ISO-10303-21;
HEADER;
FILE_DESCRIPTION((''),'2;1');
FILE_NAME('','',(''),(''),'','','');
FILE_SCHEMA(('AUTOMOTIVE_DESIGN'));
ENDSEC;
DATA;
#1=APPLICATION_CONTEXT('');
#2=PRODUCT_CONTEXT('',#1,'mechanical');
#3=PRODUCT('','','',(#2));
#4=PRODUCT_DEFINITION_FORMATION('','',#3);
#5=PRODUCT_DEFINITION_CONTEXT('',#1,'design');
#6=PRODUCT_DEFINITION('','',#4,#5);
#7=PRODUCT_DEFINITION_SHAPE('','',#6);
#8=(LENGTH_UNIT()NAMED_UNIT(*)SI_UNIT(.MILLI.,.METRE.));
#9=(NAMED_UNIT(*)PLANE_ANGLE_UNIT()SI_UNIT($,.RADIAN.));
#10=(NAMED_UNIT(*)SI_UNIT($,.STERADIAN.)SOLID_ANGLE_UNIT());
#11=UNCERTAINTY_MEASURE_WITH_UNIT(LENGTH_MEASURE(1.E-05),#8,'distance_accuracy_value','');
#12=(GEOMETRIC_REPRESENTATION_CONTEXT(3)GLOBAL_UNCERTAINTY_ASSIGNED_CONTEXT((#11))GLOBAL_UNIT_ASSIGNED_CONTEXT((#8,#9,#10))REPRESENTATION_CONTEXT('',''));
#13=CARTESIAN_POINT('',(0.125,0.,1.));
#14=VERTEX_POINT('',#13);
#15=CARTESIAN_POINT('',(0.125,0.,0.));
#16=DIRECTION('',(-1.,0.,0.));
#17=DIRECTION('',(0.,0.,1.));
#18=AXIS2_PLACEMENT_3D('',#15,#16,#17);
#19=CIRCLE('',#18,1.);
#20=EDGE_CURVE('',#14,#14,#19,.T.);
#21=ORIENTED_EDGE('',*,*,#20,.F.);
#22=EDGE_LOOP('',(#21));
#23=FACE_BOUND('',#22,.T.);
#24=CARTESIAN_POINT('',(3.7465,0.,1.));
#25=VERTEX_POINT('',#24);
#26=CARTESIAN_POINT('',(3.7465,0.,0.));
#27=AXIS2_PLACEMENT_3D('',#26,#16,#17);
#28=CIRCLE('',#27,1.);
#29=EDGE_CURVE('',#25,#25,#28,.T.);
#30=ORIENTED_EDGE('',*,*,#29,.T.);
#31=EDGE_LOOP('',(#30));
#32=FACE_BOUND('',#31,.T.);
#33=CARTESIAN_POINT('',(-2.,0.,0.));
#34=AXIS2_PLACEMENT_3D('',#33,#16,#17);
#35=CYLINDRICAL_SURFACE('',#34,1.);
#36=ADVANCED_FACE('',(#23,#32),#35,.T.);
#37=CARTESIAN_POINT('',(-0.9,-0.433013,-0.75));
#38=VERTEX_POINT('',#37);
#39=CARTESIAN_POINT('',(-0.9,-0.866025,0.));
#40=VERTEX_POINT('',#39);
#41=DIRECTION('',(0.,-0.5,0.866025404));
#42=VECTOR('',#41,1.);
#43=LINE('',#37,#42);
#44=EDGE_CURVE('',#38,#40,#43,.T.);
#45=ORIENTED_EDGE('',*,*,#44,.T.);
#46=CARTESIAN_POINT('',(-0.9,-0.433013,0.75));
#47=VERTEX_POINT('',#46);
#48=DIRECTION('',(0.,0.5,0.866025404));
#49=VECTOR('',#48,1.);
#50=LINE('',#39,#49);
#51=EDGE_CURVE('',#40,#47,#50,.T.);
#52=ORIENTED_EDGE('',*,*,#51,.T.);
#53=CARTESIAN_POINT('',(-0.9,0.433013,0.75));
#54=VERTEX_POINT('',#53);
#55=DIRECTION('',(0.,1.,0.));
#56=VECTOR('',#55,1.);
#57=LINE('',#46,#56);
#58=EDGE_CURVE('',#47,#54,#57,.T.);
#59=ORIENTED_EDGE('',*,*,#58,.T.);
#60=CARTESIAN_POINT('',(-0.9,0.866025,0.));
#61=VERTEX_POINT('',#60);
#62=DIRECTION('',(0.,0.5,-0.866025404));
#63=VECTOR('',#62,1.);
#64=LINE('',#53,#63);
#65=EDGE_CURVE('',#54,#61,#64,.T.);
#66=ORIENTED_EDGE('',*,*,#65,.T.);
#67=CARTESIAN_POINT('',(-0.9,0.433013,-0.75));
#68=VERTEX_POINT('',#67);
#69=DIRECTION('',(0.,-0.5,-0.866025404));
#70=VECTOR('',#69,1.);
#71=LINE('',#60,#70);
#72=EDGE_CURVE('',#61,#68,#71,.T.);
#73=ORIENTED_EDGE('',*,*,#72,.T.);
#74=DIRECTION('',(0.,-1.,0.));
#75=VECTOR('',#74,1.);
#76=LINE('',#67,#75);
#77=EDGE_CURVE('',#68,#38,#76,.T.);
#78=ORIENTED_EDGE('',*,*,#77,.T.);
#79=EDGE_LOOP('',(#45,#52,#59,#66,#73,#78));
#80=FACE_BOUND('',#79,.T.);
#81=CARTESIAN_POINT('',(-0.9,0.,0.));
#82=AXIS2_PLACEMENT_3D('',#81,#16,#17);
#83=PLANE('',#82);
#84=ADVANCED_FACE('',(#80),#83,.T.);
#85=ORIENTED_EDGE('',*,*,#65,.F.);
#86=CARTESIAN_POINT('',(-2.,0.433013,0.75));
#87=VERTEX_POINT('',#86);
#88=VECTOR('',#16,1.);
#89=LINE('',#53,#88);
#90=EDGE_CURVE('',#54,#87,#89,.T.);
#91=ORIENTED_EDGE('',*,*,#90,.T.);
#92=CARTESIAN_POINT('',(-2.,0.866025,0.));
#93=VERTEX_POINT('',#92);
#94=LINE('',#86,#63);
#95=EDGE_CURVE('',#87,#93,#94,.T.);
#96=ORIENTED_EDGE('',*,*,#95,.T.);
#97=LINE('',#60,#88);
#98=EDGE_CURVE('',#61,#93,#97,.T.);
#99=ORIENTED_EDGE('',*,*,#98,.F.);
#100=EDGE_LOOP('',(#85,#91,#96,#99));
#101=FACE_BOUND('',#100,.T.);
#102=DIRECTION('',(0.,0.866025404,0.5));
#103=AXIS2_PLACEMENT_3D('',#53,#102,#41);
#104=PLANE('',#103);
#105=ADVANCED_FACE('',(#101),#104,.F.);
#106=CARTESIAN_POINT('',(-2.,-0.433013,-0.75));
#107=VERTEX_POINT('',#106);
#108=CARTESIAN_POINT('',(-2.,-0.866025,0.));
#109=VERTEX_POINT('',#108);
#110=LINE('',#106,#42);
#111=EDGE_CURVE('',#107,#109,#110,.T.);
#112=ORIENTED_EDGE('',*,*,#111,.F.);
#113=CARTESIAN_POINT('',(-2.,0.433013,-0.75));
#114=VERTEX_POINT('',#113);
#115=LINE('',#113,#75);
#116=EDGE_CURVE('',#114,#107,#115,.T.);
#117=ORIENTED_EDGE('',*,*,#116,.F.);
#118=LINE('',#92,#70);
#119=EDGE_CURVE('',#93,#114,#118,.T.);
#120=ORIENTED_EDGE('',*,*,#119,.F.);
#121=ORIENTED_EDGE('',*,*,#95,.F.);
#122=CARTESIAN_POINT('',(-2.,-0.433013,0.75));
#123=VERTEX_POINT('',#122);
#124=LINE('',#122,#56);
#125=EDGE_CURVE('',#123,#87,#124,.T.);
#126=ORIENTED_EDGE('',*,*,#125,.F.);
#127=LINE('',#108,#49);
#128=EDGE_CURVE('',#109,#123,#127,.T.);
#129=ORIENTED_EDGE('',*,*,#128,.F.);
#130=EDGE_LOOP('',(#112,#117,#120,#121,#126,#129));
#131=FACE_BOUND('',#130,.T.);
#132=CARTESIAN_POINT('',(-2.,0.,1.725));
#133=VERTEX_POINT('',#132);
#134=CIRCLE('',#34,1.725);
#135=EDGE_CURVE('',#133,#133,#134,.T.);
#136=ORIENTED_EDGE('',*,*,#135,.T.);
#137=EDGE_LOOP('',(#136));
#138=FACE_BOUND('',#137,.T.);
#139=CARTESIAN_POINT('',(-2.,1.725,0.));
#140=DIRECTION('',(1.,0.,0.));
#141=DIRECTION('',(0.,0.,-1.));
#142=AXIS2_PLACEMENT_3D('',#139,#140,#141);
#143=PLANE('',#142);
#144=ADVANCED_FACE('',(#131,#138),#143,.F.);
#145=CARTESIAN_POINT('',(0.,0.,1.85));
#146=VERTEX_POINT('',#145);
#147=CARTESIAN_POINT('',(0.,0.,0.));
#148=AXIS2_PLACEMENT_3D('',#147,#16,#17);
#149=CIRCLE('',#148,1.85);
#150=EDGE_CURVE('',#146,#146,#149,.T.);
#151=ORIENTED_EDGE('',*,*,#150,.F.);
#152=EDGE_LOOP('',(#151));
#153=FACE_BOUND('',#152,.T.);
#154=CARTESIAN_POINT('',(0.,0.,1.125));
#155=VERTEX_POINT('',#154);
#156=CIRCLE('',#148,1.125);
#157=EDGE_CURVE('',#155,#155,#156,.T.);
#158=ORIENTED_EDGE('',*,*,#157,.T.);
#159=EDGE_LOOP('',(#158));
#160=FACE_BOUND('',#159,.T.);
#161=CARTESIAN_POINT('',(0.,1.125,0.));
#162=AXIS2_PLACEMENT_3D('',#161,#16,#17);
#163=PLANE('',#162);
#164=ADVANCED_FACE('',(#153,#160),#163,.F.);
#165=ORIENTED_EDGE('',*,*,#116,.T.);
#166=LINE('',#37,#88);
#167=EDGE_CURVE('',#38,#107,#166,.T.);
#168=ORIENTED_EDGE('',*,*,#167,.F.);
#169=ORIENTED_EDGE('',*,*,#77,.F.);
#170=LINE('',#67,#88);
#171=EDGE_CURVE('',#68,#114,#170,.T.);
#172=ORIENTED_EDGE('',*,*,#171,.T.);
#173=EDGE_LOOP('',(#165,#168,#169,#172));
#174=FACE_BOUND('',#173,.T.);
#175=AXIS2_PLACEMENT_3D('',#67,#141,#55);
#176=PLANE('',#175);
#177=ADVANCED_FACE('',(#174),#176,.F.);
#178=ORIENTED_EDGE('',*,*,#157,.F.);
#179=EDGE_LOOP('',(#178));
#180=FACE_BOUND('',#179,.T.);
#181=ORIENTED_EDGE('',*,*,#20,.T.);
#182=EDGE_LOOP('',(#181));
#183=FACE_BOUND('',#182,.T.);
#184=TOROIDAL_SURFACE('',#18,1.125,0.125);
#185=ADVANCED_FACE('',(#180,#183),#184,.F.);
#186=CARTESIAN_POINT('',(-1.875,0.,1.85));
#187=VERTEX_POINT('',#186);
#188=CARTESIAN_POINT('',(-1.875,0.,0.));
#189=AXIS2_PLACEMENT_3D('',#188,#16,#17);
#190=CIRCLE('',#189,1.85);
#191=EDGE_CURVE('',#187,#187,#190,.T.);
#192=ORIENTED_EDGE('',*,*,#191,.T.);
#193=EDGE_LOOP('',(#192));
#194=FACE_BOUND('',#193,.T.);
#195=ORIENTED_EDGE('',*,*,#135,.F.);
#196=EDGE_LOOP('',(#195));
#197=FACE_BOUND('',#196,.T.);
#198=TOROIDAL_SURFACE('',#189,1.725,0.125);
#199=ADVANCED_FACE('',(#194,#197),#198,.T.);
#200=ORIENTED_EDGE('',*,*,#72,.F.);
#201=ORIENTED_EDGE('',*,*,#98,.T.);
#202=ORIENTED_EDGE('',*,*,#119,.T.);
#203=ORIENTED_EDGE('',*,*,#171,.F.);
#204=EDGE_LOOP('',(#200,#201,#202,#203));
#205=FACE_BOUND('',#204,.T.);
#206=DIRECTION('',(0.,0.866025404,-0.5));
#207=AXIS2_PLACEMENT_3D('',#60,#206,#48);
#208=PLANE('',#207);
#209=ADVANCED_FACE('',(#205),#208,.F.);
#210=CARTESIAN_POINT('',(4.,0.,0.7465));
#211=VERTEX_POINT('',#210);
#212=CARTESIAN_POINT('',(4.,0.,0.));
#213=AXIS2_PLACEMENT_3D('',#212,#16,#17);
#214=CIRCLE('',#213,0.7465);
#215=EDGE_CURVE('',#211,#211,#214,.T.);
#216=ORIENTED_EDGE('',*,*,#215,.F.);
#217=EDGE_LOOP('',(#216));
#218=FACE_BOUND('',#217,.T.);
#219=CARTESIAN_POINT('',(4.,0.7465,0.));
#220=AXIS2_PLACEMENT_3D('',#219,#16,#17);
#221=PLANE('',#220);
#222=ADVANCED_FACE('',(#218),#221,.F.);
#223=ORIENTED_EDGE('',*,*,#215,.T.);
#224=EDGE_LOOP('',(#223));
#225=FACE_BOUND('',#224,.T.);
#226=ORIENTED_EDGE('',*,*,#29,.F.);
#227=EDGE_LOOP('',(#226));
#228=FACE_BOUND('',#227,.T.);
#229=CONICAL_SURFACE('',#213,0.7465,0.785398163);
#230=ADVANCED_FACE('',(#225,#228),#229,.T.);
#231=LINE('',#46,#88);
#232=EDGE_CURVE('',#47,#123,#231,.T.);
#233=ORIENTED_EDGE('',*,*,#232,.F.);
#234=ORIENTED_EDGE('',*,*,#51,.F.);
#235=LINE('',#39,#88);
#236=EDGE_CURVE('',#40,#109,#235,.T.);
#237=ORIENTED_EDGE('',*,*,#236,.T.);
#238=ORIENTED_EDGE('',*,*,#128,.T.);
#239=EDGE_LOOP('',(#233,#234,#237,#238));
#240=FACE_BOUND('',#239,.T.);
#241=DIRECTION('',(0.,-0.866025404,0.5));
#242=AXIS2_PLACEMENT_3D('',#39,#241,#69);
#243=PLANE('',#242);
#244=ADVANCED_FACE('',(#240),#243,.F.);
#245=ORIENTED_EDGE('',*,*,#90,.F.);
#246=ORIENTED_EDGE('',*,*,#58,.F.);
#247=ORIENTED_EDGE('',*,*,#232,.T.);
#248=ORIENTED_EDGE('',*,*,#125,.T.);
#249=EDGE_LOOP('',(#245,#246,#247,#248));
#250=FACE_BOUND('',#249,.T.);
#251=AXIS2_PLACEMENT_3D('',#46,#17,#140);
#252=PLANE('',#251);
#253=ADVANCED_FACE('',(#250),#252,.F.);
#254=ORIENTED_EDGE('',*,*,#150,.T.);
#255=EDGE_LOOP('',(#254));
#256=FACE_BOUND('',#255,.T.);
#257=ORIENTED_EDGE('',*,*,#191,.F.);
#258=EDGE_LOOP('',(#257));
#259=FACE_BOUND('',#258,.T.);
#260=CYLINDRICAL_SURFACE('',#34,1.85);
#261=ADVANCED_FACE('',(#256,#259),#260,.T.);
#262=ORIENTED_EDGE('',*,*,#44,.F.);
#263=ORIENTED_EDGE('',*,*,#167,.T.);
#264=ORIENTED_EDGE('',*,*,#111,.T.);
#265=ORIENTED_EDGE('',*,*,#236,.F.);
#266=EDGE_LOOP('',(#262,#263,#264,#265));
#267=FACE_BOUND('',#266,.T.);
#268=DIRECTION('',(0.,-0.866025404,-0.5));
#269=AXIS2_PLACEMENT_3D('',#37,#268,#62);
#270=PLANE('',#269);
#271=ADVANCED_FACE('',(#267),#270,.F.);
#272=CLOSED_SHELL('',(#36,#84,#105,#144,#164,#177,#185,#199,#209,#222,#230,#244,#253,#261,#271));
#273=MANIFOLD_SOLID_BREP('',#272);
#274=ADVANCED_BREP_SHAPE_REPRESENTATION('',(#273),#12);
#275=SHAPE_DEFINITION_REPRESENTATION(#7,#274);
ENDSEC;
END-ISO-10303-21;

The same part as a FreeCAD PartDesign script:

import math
import FreeCAD as App
import Part
import Sketcher

V = App.Vector
Q = App.Units.Quantity

doc = App.newDocument("Part")
params = doc.addObject("Spreadsheet::Sheet", "Params")
for row, (alias, value) in enumerate([
    ("sketch1_width", "6 mm"),
    ("revolution_angle", "360 deg"),
    ("pocket1_length", "1.1 mm"),
], start=1):
    params.set(f"A{row}", alias)
    params.set(f"B{row}", "=" + value)
    params.setAlias(f"B{row}", alias)

body = doc.addObject("PartDesign::Body", "Body")

sketch1 = body.newObject("Sketcher::SketchObject", "Sketch")
sketch1.AttachmentSupport = (doc.getObject("XY_Plane"), [""])
sketch1.MapMode = "FlatFace"
sketch1.addGeometry(Part.LineSegment(V(3.75, 1, 0), V(0.12, 1, 0)), False)
sketch1.addGeometry(Part.ArcOfCircle(Part.Circle(V(0.12, 1.12, 0), V(0, 0, 1), 0.12), math.radians(180), math.radians(270)), False)
sketch1.addGeometry(Part.LineSegment(V(0, 1.12, 0), V(0, 1.85, 0)), False)
sketch1.addGeometry(Part.LineSegment(V(0, 1.85, 0), V(-1.88, 1.85, 0)), False)
sketch1.addGeometry(Part.ArcOfCircle(Part.Circle(V(-1.88, 1.73, 0), V(0, 0, 1), 0.12), math.radians(90), math.radians(180)), False)
sketch1.addGeometry(Part.LineSegment(V(-2, 1.73, 0), V(-2, 0, 0)), False)
sketch1.addGeometry(Part.LineSegment(V(-2, 0, 0), V(4, 0, 0)), False)
sketch1.addGeometry(Part.LineSegment(V(4, 0, 0), V(4, 0.75, 0)), False)
sketch1.addGeometry(Part.LineSegment(V(4, 0.75, 0), V(3.75, 1, 0)), False)
sketch1.addConstraint(Sketcher.Constraint("Tangent", 0, 2, 1, 2))
sketch1.addConstraint(Sketcher.Constraint("Tangent", 1, 1, 2, 1))
sketch1.addConstraint(Sketcher.Constraint("Coincident", 2, 2, 3, 1))
sketch1.addConstraint(Sketcher.Constraint("Tangent", 3, 2, 4, 1))
sketch1.addConstraint(Sketcher.Constraint("Tangent", 4, 2, 5, 1))
sketch1.addConstraint(Sketcher.Constraint("Coincident", 5, 2, 6, 1))
sketch1.addConstraint(Sketcher.Constraint("Coincident", 6, 2, 7, 1))
sketch1.addConstraint(Sketcher.Constraint("Coincident", 7, 2, 8, 1))
sketch1.addConstraint(Sketcher.Constraint("Coincident", 8, 2, 0, 1))
sketch1.addConstraint(Sketcher.Constraint("Horizontal", 0))
sketch1.addConstraint(Sketcher.Constraint("Vertical", 2))
sketch1.addConstraint(Sketcher.Constraint("Horizontal", 3))
sketch1.addConstraint(Sketcher.Constraint("Vertical", 5))
sketch1.addConstraint(Sketcher.Constraint("Horizontal", 6))
sketch1.addConstraint(Sketcher.Constraint("Vertical", 7))
sketch1.addConstraint(Sketcher.Constraint("Equal", 1, 4))
sketch1.addConstraint(Sketcher.Constraint("PointOnObject", 1, 1, -2))
sketch1.addConstraint(Sketcher.Constraint("PointOnObject", 5, 2, -1))
sketch1.addConstraint(Sketcher.Constraint("DistanceX", 6, 1, 6, 2, Q("6 mm")))
sketch1.addConstraint(Sketcher.Constraint("Angle", 8, Q("135 deg")))
sketch1.addConstraint(Sketcher.Constraint("DistanceY", -1, 1, 0, 2, Q("1 mm")))
sketch1.addConstraint(Sketcher.Constraint("DistanceX", 4, 2, -1, 1, Q("2 mm")))
sketch1.addConstraint(Sketcher.Constraint("Radius", 1, Q("0.125 mm")))
sketch1.addConstraint(Sketcher.Constraint("DistanceY", 1, 3, 4, 3, Q("0.6 mm")))
sketch1.addConstraint(Sketcher.Constraint("DistanceX", 0, 2, 0, 1, Q("3.6215 mm")))
sketch1.setExpression("Constraints[18]", "Params.sketch1_width")
revolution = body.newObject("PartDesign::Revolution", "Revolution")
revolution.Profile = sketch1
revolution.ReferenceAxis = (sketch1, ["H_Axis"])
revolution.setExpression("Angle", "Params.revolution_angle")

sketch2 = body.newObject("Sketcher::SketchObject", "Sketch001")
sketch2.AttachmentSupport = (doc.getObject("YZ_Plane"), [""])
sketch2.MapMode = "FlatFace"
sketch2.AttachmentOffset = App.Placement(V(0, 0, -2), App.Rotation())
sketch2.addGeometry(Part.LineSegment(V(0.4, 0.8, 0), V(0.9, 0, 0)), False)
sketch2.addGeometry(Part.LineSegment(V(0.9, 0, 0), V(0.4, -0.8, 0)), False)
sketch2.addGeometry(Part.LineSegment(V(0.4, -0.8, 0), V(-0.4, -0.8, 0)), False)
sketch2.addGeometry(Part.LineSegment(V(-0.4, -0.8, 0), V(-0.9, 0, 0)), False)
sketch2.addGeometry(Part.LineSegment(V(-0.9, 0, 0), V(-0.4, 0.8, 0)), False)
sketch2.addGeometry(Part.LineSegment(V(-0.4, 0.8, 0), V(0.4, 0.8, 0)), False)
sketch2.addConstraint(Sketcher.Constraint("Coincident", 0, 2, 1, 1))
sketch2.addConstraint(Sketcher.Constraint("Coincident", 1, 2, 2, 1))
sketch2.addConstraint(Sketcher.Constraint("Coincident", 2, 2, 3, 1))
sketch2.addConstraint(Sketcher.Constraint("Coincident", 3, 2, 4, 1))
sketch2.addConstraint(Sketcher.Constraint("Coincident", 4, 2, 5, 1))
sketch2.addConstraint(Sketcher.Constraint("Coincident", 5, 2, 0, 1))
sketch2.addConstraint(Sketcher.Constraint("Horizontal", 2))
sketch2.addConstraint(Sketcher.Constraint("Horizontal", 5))
sketch2.addConstraint(Sketcher.Constraint("Symmetric", 0, 2, 3, 2, -1, 1))
sketch2.addConstraint(Sketcher.Constraint("Symmetric", 1, 2, 4, 2, -1, 1))
sketch2.addConstraint(Sketcher.Constraint("PointOnObject", 0, 2, -1))
sketch2.addConstraint(Sketcher.Constraint("Parallel", 0, 3))
sketch2.addConstraint(Sketcher.Constraint("Vertical", 2, 2, 4, 2))
sketch2.addConstraint(Sketcher.Constraint("Angle", 0, Q("-60 deg")))
sketch2.addConstraint(Sketcher.Constraint("DistanceY", 2, 2, 4, 2, Q("1.5 mm")))
sketch2.addConstraint(Sketcher.Constraint("DistanceX", 2, 2, 2, 1, Q("0.866025 mm")))
pocket1 = body.newObject("PartDesign::Pocket", "Pocket")
pocket1.Profile = sketch2
pocket1.setExpression("Length", "Params.pocket1_length")
pocket1.Reversed = True

doc.recompute()
